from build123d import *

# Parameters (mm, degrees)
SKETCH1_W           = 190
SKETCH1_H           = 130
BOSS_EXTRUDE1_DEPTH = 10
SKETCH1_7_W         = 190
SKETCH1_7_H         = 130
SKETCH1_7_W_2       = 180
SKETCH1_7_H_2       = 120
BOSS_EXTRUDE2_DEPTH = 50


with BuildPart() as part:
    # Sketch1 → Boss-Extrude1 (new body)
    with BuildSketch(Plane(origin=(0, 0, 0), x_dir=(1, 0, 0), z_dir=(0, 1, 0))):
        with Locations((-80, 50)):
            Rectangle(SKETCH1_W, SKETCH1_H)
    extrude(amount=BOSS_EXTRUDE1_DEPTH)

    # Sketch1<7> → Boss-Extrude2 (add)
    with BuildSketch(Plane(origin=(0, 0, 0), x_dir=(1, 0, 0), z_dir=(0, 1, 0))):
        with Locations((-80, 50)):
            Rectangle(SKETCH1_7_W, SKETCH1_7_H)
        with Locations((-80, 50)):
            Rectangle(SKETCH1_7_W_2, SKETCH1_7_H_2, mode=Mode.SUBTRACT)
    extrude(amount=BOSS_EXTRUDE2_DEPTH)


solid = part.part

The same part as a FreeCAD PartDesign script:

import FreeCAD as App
import Part
import Sketcher
from FreeCAD import Vector
Q = App.Units.Quantity


def add_polygon(sketch, points):
    """Adds a closed chain of lines whose ends are joined by coincident constraints."""
    first, n = sketch.GeometryCount, len(points)
    for a, b in zip(points, points[1:] + points[:1]):
        sketch.addGeometry(Part.LineSegment(App.Vector(*a, 0), App.Vector(*b, 0)), False)
    for i in range(n):
        sketch.addConstraint(Sketcher.Constraint("Coincident", first + i, 2, first + (i + 1) % n, 1))

doc = App.newDocument("Part")
body = doc.addObject("PartDesign::Body", "Body")

# Sketch on XZ plane
sketch1 = body.newObject("Sketcher::SketchObject", "Sketch")
sketch1.AttachmentSupport = (doc.getObject("XZ_Plane"), [""])
sketch1.MapMode = "FlatFace"
add_polygon(sketch1, [(-175, -115), (-175, 15), (15, 15), (15, -115)])  # lines 0-3
sketch1.addConstraint([
    Sketcher.Constraint("Vertical", 0),
    Sketcher.Constraint("Horizontal", 1),
    Sketcher.Constraint("Vertical", 2),
    Sketcher.Constraint("Horizontal", 3),
    Sketcher.Constraint("DistanceX", 1, 1, 1, 2, Q("190 mm")),
    Sketcher.Constraint("DistanceY", 0, 1, 0, 2, Q("130 mm")),
    Sketcher.Constraint("DistanceX", 0, 2, -1, 1, Q("175 mm")),
    Sketcher.Constraint("DistanceY", -1, 1, 0, 2, Q("15 mm")),
])
pad1 = body.newObject("PartDesign::Pad", "Pad")
pad1.Profile = sketch1
pad1.Length = 10
pad1.Reversed = True

# Sketch on XZ plane
sketch2 = body.newObject("Sketcher::SketchObject", "Sketch001")
sketch2.AttachmentSupport = (doc.getObject("XZ_Plane"), [""])
sketch2.MapMode = "FlatFace"
add_polygon(sketch2, [(-175, -115), (-175, 15), (15, 15), (15, -115)])  # lines 0-3
add_polygon(sketch2, [(10, 10), (-170, 10), (-170, -110), (10, -110)])  # lines 4-7
sketch2.addConstraint([
    Sketcher.Constraint("Vertical", 0),
    Sketcher.Constraint("Horizontal", 1),
    Sketcher.Constraint("Vertical", 2),
    Sketcher.Constraint("Horizontal", 3),
    Sketcher.Constraint("Horizontal", 4),
    Sketcher.Constraint("Vertical", 5),
    Sketcher.Constraint("Horizontal", 6),
    Sketcher.Constraint("Vertical", 7),
    Sketcher.Constraint("DistanceX", 1, 1, 1, 2, Q("190 mm")),
    Sketcher.Constraint("DistanceX", 4, 2, 4, 1, Q("180 mm")),
    Sketcher.Constraint("DistanceY", 0, 1, 0, 2, Q("130 mm")),
    Sketcher.Constraint("DistanceY", 5, 2, 5, 1, Q("120 mm")),
    Sketcher.Constraint("DistanceX", 0, 2, -1, 1, Q("175 mm")),
    Sketcher.Constraint("DistanceY", -1, 1, 0, 2, Q("15 mm")),
    Sketcher.Constraint("DistanceX", 4, 2, -1, 1, Q("170 mm")),
    Sketcher.Constraint("DistanceY", -1, 1, 4, 2, Q("10 mm")),
])
pad2 = body.newObject("PartDesign::Pad", "Pad001")
pad2.Profile = sketch2
pad2.Length = 50
pad2.Reversed = True

doc.recompute()
